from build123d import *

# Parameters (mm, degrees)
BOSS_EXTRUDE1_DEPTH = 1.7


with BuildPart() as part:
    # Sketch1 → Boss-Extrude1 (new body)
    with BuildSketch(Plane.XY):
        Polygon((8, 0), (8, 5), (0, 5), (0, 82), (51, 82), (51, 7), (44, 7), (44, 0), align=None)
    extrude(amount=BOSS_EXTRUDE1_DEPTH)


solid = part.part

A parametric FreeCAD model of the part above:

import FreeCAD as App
import Part
import Sketcher
from FreeCAD import Vector


def add_polygon(sketch, points):
    """Adds a closed chain of lines whose ends are joined by coincident constraints."""
    first, n = sketch.GeometryCount, len(points)
    for a, b in zip(points, points[1:] + points[:1]):
        sketch.addGeometry(Part.LineSegment(App.Vector(*a, 0), App.Vector(*b, 0)), False)
    for i in range(n):
        sketch.addConstraint(Sketcher.Constraint("Coincident", first + i, 2, first + (i + 1) % n, 1))

doc = App.newDocument("Part")
body = doc.addObject("PartDesign::Body", "Body")

# Sketch on XY plane
sketch1 = body.newObject("Sketcher::SketchObject", "Sketch")
sketch1.AttachmentSupport = (doc.getObject("XY_Plane"), [""])
sketch1.MapMode = "FlatFace"
add_polygon(sketch1, [(8, 5), (8, 0), (44, 0), (44, 7), (51, 7), (51, 82), (0, 82), (0, 5)])  # lines 0-7
sketch1.addConstraint([
    Sketcher.Constraint("Vertical", 0),
    Sketcher.Constraint("Horizontal", 1),
    Sketcher.Constraint("Vertical", 2),
    Sketcher.Constraint("Horizontal", 3),
    Sketcher.Constraint("Vertical", 4),
    Sketcher.Constraint("Horizontal", 5),
    Sketcher.Constraint("Vertical", 6),
    Sketcher.Constraint("Horizontal", 7),
    Sketcher.Constraint("PointOnObject", 0, 2, -1),
    Sketcher.Constraint("PointOnObject", 5, 2, -2),
    Sketcher.Constraint("Equal", 3, 2),
    Sketcher.Constraint("DistanceX", 1, 1, 1, 2, 36.0),
    Sketcher.Constraint("DistanceX", 3, 1, 3, 2, 7.0),
    Sketcher.Constraint("DistanceX", 5, 2, 5, 1, 51.0),
    Sketcher.Constraint("DistanceY", 0, 2, 0, 1, 5.0),
    Sketcher.Constraint("DistanceY", 4, 1, 4, 2, 75.0),
])
pad1 = body.newObject("PartDesign::Pad", "Pad")
pad1.Profile = sketch1
pad1.Length = 1.7

doc.recompute()
